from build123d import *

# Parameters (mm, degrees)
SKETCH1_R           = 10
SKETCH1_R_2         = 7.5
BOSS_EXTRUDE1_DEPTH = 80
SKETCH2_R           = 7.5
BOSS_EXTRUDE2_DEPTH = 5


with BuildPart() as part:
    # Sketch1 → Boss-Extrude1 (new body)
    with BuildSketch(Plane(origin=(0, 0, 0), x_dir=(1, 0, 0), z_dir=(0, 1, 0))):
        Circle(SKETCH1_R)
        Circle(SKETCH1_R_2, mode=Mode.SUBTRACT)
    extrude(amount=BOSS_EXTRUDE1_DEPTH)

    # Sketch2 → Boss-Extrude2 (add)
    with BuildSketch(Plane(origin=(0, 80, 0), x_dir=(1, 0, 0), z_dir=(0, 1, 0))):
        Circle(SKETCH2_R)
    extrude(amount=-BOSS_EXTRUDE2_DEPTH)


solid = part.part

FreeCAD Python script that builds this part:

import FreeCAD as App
import Part
import Sketcher
from FreeCAD import Vector

doc = App.newDocument("Part")
body = doc.addObject("PartDesign::Body", "Body")

# Sketch on XZ plane
sketch1 = body.newObject("Sketcher::SketchObject", "Sketch")
sketch1.AttachmentSupport = (doc.getObject("XZ_Plane"), [""])
sketch1.MapMode = "FlatFace"
sketch1.addGeometry([
    Part.Circle(Vector(0, 0, 0), Vector(0, 0, 1), 10),
    Part.Circle(Vector(0, 0, 0), Vector(0, 0, 1), 8),
], False)
sketch1.addConstraint([
    Sketcher.Constraint("Coincident", 0, 3, -1, 1),
    Sketcher.Constraint("Coincident", 1, 3, -1, 1),
    Sketcher.Constraint("Diameter", 0, 20.0),
    Sketcher.Constraint("Diameter", 1, 15.0),
])
pad1 = body.newObject("PartDesign::Pad", "Pad")
pad1.Profile = sketch1
pad1.Length = 80
pad1.Reversed = True

# Sketch on XZ plane
sketch2 = body.newObject("Sketcher::SketchObject", "Sketch001")
sketch2.AttachmentSupport = (doc.getObject("XZ_Plane"), [""])
sketch2.MapMode = "FlatFace"
sketch2.AttachmentOffset = App.Placement(Vector(0, 0, -80), App.Rotation())
sketch2.addGeometry(Part.Circle(Vector(0, 0, 0), Vector(0, 0, 1), 8), False)
sketch2.addConstraint([
    Sketcher.Constraint("Coincident", 0, 3, -1, 1),
    Sketcher.Constraint("Diameter", 0, 15.0),
])
pad2 = body.newObject("PartDesign::Pad", "Pad001")
pad2.Profile = sketch2
pad2.Length = 5

doc.recompute()
